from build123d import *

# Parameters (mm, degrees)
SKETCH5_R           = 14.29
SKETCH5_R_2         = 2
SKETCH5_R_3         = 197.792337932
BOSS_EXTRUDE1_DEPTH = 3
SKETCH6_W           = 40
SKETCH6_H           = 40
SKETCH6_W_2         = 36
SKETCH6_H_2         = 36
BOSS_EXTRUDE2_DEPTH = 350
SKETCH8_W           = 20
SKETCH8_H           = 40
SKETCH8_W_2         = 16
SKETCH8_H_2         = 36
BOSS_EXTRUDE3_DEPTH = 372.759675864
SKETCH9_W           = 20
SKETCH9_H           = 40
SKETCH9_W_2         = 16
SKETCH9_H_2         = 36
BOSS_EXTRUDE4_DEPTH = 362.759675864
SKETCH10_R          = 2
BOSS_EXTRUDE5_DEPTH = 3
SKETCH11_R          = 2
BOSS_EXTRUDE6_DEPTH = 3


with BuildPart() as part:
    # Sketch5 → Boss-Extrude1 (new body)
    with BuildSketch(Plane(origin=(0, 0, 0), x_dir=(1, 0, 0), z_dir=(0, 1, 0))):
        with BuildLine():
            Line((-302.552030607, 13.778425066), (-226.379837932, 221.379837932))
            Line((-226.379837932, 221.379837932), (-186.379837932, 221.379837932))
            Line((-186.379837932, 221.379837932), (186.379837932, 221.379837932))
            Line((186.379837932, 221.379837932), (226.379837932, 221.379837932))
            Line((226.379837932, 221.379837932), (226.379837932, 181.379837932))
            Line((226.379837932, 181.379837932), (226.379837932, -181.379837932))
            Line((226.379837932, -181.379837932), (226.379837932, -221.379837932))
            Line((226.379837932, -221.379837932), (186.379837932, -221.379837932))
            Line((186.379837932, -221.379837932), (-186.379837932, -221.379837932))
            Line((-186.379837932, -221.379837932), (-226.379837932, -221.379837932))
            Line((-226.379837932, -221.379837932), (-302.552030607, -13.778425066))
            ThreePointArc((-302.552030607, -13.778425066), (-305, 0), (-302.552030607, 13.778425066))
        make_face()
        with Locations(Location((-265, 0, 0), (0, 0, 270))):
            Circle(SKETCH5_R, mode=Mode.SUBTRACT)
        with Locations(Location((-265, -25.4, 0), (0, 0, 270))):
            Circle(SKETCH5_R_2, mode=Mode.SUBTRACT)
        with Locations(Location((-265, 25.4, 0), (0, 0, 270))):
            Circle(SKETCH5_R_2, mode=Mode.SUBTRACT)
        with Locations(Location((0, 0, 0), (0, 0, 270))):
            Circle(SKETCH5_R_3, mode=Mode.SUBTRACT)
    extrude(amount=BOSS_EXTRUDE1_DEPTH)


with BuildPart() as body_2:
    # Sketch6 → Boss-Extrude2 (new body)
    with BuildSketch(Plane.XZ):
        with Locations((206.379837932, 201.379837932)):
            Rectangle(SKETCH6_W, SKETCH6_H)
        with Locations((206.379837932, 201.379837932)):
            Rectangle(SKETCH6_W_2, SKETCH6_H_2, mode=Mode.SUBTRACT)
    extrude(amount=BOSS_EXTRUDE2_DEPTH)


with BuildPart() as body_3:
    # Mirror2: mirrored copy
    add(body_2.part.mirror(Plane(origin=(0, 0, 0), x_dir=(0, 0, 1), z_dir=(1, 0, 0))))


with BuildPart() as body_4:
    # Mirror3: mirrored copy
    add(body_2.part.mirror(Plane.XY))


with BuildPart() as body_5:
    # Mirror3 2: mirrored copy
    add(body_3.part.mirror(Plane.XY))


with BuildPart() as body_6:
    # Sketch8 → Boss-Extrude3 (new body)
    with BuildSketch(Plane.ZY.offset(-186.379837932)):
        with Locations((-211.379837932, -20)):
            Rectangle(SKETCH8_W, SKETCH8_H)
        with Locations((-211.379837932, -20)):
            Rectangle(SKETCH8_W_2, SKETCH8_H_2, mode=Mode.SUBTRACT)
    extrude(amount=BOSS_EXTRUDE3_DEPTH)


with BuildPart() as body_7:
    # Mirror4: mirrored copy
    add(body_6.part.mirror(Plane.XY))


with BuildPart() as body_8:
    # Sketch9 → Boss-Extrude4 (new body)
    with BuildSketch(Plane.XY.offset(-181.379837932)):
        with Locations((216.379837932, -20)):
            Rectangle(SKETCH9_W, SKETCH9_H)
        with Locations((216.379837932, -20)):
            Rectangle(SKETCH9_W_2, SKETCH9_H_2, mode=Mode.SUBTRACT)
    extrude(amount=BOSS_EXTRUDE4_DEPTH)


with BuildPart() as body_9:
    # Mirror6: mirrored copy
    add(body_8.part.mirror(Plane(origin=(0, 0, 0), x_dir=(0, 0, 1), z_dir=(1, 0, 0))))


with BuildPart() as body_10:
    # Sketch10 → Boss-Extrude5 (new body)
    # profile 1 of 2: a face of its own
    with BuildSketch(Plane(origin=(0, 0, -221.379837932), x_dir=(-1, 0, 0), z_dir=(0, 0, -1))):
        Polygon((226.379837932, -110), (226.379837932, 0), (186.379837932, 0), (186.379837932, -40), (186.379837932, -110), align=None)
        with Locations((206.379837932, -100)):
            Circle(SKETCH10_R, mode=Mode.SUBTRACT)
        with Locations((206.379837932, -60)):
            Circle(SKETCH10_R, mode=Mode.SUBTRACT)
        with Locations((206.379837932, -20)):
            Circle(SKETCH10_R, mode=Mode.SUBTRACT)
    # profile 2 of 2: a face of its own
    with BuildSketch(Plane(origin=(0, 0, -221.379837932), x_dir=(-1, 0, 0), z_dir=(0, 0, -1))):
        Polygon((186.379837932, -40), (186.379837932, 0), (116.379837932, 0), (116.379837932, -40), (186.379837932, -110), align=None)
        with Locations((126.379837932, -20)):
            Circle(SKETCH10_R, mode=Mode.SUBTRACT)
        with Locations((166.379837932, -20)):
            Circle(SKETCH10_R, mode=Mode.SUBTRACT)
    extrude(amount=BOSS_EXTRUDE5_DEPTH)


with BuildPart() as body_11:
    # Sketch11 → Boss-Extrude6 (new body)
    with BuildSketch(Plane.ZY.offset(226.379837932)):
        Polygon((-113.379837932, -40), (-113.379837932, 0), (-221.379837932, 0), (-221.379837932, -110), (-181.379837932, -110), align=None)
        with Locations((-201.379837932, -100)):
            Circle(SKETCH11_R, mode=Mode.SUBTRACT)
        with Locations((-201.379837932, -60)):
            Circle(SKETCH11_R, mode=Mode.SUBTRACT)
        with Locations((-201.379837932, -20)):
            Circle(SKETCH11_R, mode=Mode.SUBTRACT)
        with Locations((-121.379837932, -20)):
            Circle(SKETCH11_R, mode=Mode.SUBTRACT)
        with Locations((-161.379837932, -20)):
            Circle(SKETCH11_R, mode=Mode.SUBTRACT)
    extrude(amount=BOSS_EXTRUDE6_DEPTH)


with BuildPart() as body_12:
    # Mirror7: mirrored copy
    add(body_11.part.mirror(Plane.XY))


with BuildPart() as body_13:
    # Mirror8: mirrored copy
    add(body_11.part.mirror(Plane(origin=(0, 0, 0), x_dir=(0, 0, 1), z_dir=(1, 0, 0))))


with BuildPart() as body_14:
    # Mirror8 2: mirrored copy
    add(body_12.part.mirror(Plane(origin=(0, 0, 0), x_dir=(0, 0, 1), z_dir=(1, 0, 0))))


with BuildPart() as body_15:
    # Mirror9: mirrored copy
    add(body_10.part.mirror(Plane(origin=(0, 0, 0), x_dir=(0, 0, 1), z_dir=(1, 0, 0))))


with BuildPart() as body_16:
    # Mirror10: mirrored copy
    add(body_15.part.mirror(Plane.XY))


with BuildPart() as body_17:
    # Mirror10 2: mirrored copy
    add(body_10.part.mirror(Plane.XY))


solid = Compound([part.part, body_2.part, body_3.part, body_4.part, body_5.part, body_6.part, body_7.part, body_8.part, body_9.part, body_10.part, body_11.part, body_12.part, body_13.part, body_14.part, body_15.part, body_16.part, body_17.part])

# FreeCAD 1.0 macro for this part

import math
import FreeCAD as App
import Part
import Sketcher
from FreeCAD import Vector
Q = App.Units.Quantity

doc = App.newDocument("Part")
body = doc.addObject("PartDesign::Body", "Body")

# Sketch on XZ plane
sketch1 = body.newObject("Sketcher::SketchObject", "Sketch")
sketch1.AttachmentSupport = (doc.getObject("XZ_Plane"), [""])
sketch1.MapMode = "FlatFace"
sketch1.addGeometry(Part.LineSegment(Vector(-226.379838, -221.379838, 0), Vector(-302.552031, -13.778425, 0)), False)
sketch1.addGeometry(Part.ArcOfCircle(Part.Circle(Vector(-265, 0, 0), Vector(0, 0, 1), 40), math.radians(159.851126), math.radians(200.148874)), False)
sketch1.addGeometry(Part.LineSegment(Vector(-302.552031, 13.778425, 0), Vector(-226.379838, 221.379838, 0)), False)
sketch1.addGeometry(Part.LineSegment(Vector(-226.379838, 221.379838, 0), Vector(226.379838, 221.379838, 0)), False)
sketch1.addGeometry(Part.LineSegment(Vector(226.379838, 221.379838, 0), Vector(226.379838, -221.379838, 0)), False)
sketch1.addGeometry(Part.LineSegment(Vector(226.379838, -221.379838, 0), Vector(-226.379838, -221.379838, 0)), False)
sketch1.addGeometry(Part.Circle(Vector(-265, 25.4, 0), Vector(0, 0, 1), 2), False)
sketch1.addGeometry(Part.Circle(Vector(0, 0, 0), Vector(0, 0, 1), 197.792338), False)
sketch1.addGeometry(Part.Circle(Vector(-265, 0, 0), Vector(0, 0, 1), 14.29), False)
sketch1.addGeometry(Part.Circle(Vector(-265, -25.4, 0), Vector(0, 0, 1), 2), False)
sketch1.addConstraint(Sketcher.Constraint("Tangent", 0, 2, 1, 2))
sketch1.addConstraint(Sketcher.Constraint("Tangent", 1, 1, 2, 1))
sketch1.addConstraint(Sketcher.Constraint("Coincident", 2, 2, 3, 1))
sketch1.addConstraint(Sketcher.Constraint("Coincident", 3, 2, 4, 1))
sketch1.addConstraint(Sketcher.Constraint("Coincident", 4, 2, 5, 1))
sketch1.addConstraint(Sketcher.Constraint("Coincident", 5, 2, 0, 1))
sketch1.addConstraint(Sketcher.Constraint("Horizontal", 3))
sketch1.addConstraint(Sketcher.Constraint("Vertical", 4))
sketch1.addConstraint(Sketcher.Constraint("Horizontal", 5))
sketch1.addConstraint(Sketcher.Constraint("Coincident", 7, 3, -1, 1))
sketch1.addConstraint(Sketcher.Constraint("Coincident", 8, 3, 1, 3))
sketch1.addConstraint(Sketcher.Constraint("Equal", 6, 9))
sketch1.addConstraint(Sketcher.Constraint("Symmetric", 2, 2, 4, 2, -1, 1))
sketch1.addConstraint(Sketcher.Constraint("Symmetric", 6, 3, 9, 3, -1))
sketch1.addConstraint(Sketcher.Constraint("Symmetric", 0, 2, 1, 1, -1))
sketch1.addConstraint(Sketcher.Constraint("Vertical", 1, 3, 6, 3))
sketch1.addConstraint(Sketcher.Constraint("Diameter", 6, Q("4 mm")))
sketch1.addConstraint(Sketcher.Constraint("Radius", 1, Q("40 mm")))
sketch1.addConstraint(Sketcher.Constraint("Diameter", 8, Q("28.58 mm")))
sketch1.addConstraint(Sketcher.Constraint("DistanceX", 1, 3, -1, 1, Q("265 mm")))
sketch1.addConstraint(Sketcher.Constraint("DistanceY", -1, 1, 6, 3, Q("25.4 mm")))
sketch1.addConstraint(Sketcher.Constraint("Diameter", 7, Q("395.584676 mm")))
sketch1.addConstraint(Sketcher.Constraint("DistanceX", 3, 1, 3, 2, Q("452.759676 mm")))
sketch1.addConstraint(Sketcher.Constraint("DistanceY", 4, 2, 4, 1, Q("442.759676 mm")))
pad1 = body.newObject("PartDesign::Pad", "Pad")
pad1.Profile = sketch1
pad1.Length = 3
pad1.Reversed = True
body2 = doc.addObject("PartDesign::Body", "Body001")

# Sketch on XZ plane
sketch2 = body2.newObject("Sketcher::SketchObject", "Sketch001")
sketch2.AttachmentSupport = (doc.getObject("XZ_Plane001"), [""])
sketch2.MapMode = "FlatFace"
sketch2.addGeometry(Part.LineSegment(Vector(186.379838, 221.379838, 0), Vector(186.379838, 181.379838, 0)), False)
sketch2.addGeometry(Part.LineSegment(Vector(186.379838, 181.379838, 0), Vector(226.379838, 181.379838, 0)), False)
sketch2.addGeometry(Part.LineSegment(Vector(226.379838, 181.379838, 0), Vector(226.379838, 221.379838, 0)), False)
sketch2.addGeometry(Part.LineSegment(Vector(226.379838, 221.379838, 0), Vector(186.379838, 221.379838, 0)), False)
sketch2.addGeometry(Part.LineSegment(Vector(224.379838, 183.379838, 0), Vector(188.379838, 183.379838, 0)), False)
sketch2.addGeometry(Part.LineSegment(Vector(188.379838, 183.379838, 0), Vector(188.379838, 219.379838, 0)), False)
sketch2.addGeometry(Part.LineSegment(Vector(188.379838, 219.379838, 0), Vector(224.379838, 219.379838, 0)), False)
sketch2.addGeometry(Part.LineSegment(Vector(224.379838, 219.379838, 0), Vector(224.379838, 183.379838, 0)), False)
sketch2.addConstraint(Sketcher.Constraint("Coincident", 0, 2, 1, 1))
sketch2.addConstraint(Sketcher.Constraint("Coincident", 1, 2, 2, 1))
sketch2.addConstraint(Sketcher.Constraint("Coincident", 2, 2, 3, 1))
sketch2.addConstraint(Sketcher.Constraint("Coincident", 3, 2, 0, 1))
sketch2.addConstraint(Sketcher.Constraint("Coincident", 4, 2, 5, 1))
sketch2.addConstraint(Sketcher.Constraint("Coincident", 5, 2, 6, 1))
sketch2.addConstraint(Sketcher.Constraint("Coincident", 6, 2, 7, 1))
sketch2.addConstraint(Sketcher.Constraint("Coincident", 7, 2, 4, 1))
sketch2.addConstraint(Sketcher.Constraint("Vertical", 0))
sketch2.addConstraint(Sketcher.Constraint("Horizontal", 1))
sketch2.addConstraint(Sketcher.Constraint("Vertical", 2))
sketch2.addConstraint(Sketcher.Constraint("Horizontal", 3))
sketch2.addConstraint(Sketcher.Constraint("Horizontal", 4))
sketch2.addConstraint(Sketcher.Constraint("Vertical", 5))
sketch2.addConstraint(Sketcher.Constraint("Horizontal", 6))
sketch2.addConstraint(Sketcher.Constraint("Vertical", 7))
sketch2.addConstraint(Sketcher.Constraint("Equal", 3, 0))
sketch2.addConstraint(Sketcher.Constraint("Equal", 6, 5))
sketch2.addConstraint(Sketcher.Constraint("DistanceX", 1, 1, 1, 2, Q("40 mm")))
sketch2.addConstraint(Sketcher.Constraint("DistanceX", 4, 2, 4, 1, Q("36 mm")))
sketch2.addConstraint(Sketcher.Constraint("DistanceX", 0, 2, 4, 2, Q("2 mm")))
sketch2.addConstraint(Sketcher.Constraint("DistanceY", 0, 2, 4, 2, Q("2 mm")))
sketch2.addConstraint(Sketcher.Constraint("DistanceX", -1, 1, 0, 2, Q("186.379838 mm")))
sketch2.addConstraint(Sketcher.Constraint("DistanceY", -1, 1, 0, 2, Q("181.379838 mm")))
pad2 = body2.newObject("PartDesign::Pad", "Pad001")
pad2.Profile = sketch2
pad2.Length = 350
body3 = doc.addObject("PartDesign::Body", "Body002")
doc.recompute()

mirroring = doc.addObject("Part::Mirroring", "Mirroring")
mirroring.Source = body2
mirroring.Base = Vector(0, 0, 0)
mirroring.Normal = Vector(1, 0, 0)
body3.BaseFeature = mirroring
doc.recompute()
body4 = doc.addObject("PartDesign::Body", "Body003")
doc.recompute()

mirroring2 = doc.addObject("Part::Mirroring", "Mirroring001")
mirroring2.Source = body2
mirroring2.Base = Vector(0, 0, 0)
mirroring2.Normal = Vector(0, 0, 1)
body4.BaseFeature = mirroring2
doc.recompute()
body5 = doc.addObject("PartDesign::Body", "Body004")
doc.recompute()

mirroring3 = doc.addObject("Part::Mirroring", "Mirroring002")
mirroring3.Source = body3
mirroring3.Base = Vector(0, 0, 0)
mirroring3.Normal = Vector(0, 0, 1)
body5.BaseFeature = mirroring3
doc.recompute()
body6 = doc.addObject("PartDesign::Body", "Body005")

# Sketch on YZ plane
sketch3 = body6.newObject("Sketcher::SketchObject", "Sketch002")
sketch3.AttachmentSupport = (doc.getObject("YZ_Plane005"), [""])
sketch3.MapMode = "FlatFace"
sketch3.AttachmentOffset = App.Placement(Vector(0, 0, 186.379838), App.Rotation())
sketch3.addGeometry(Part.LineSegment(Vector(0, -221.379838, 0), Vector(-40, -221.379838, 0)), False)
sketch3.addGeometry(Part.LineSegment(Vector(-40, -221.379838, 0), Vector(-40, -201.379838, 0)), False)
sketch3.addGeometry(Part.LineSegment(Vector(-40, -201.379838, 0), Vector(0, -201.379838, 0)), False)
sketch3.addGeometry(Part.LineSegment(Vector(0, -201.379838, 0), Vector(0, -221.379838, 0)), False)
sketch3.addGeometry(Part.LineSegment(Vector(-38, -203.379838, 0), Vector(-38, -219.379838, 0)), False)
sketch3.addGeometry(Part.LineSegment(Vector(-38, -219.379838, 0), Vector(-2, -219.379838, 0)), False)
sketch3.addGeometry(Part.LineSegment(Vector(-2, -219.379838, 0), Vector(-2, -203.379838, 0)), False)
sketch3.addGeometry(Part.LineSegment(Vector(-2, -203.379838, 0), Vector(-38, -203.379838, 0)), False)
sketch3.addConstraint(Sketcher.Constraint("Coincident", 0, 2, 1, 1))
sketch3.addConstraint(Sketcher.Constraint("Coincident", 1, 2, 2, 1))
sketch3.addConstraint(Sketcher.Constraint("Coincident", 2, 2, 3, 1))
sketch3.addConstraint(Sketcher.Constraint("Coincident", 3, 2, 0, 1))
sketch3.addConstraint(Sketcher.Constraint("Coincident", 4, 2, 5, 1))
sketch3.addConstraint(Sketcher.Constraint("Coincident", 5, 2, 6, 1))
sketch3.addConstraint(Sketcher.Constraint("Coincident", 6, 2, 7, 1))
sketch3.addConstraint(Sketcher.Constraint("Coincident", 7, 2, 4, 1))
sketch3.addConstraint(Sketcher.Constraint("Horizontal", 0))
sketch3.addConstraint(Sketcher.Constraint("Vertical", 1))
sketch3.addConstraint(Sketcher.Constraint("Horizontal", 2))
sketch3.addConstraint(Sketcher.Constraint("Vertical", 3))
sketch3.addConstraint(Sketcher.Constraint("Vertical", 4))
sketch3.addConstraint(Sketcher.Constraint("Horizontal", 5))
sketch3.addConstraint(Sketcher.Constraint("Vertical", 6))
sketch3.addConstraint(Sketcher.Constraint("Horizontal", 7))
sketch3.addConstraint(Sketcher.Constraint("PointOnObject", 2, 2, -2))
sketch3.addConstraint(Sketcher.Constraint("DistanceX", 0, 2, 0, 1, Q("40 mm")))
sketch3.addConstraint(Sketcher.Constraint("DistanceX", 5, 1, 5, 2, Q("36 mm")))
sketch3.addConstraint(Sketcher.Constraint("DistanceY", 1, 1, 1, 2, Q("20 mm")))
sketch3.addConstraint(Sketcher.Constraint("DistanceY", 4, 2, 4, 1, Q("16 mm")))
sketch3.addConstraint(Sketcher.Constraint("DistanceX", 4, 2, -1, 1, Q("38 mm")))
sketch3.addConstraint(Sketcher.Constraint("DistanceY", 0, 2, 4, 2, Q("2 mm")))
sketch3.addConstraint(Sketcher.Constraint("DistanceY", 0, 2, -1, 1, Q("221.379838 mm")))
pad3 = body6.newObject("PartDesign::Pad", "Pad002")
pad3.Profile = sketch3
pad3.Length = 372.759676
pad3.Reversed = True
body7 = doc.addObject("PartDesign::Body", "Body006")
doc.recompute()

mirroring4 = doc.addObject("Part::Mirroring", "Mirroring003")
mirroring4.Source = body6
mirroring4.Base = Vector(0, 0, 0)
mirroring4.Normal = Vector(0, 0, 1)
body7.BaseFeature = mirroring4
doc.recompute()
body8 = doc.addObject("PartDesign::Body", "Body007")

# Sketch on XY plane
sketch4 = body8.newObject("Sketcher::SketchObject", "Sketch003")
sketch4.AttachmentSupport = (doc.getObject("XY_Plane007"), [""])
sketch4.MapMode = "FlatFace"
sketch4.AttachmentOffset = App.Placement(Vector(0, 0, -181.379838), App.Rotation())
sketch4.addGeometry(Part.LineSegment(Vector(206.379838, 0, 0), Vector(206.379838, -40, 0)), False)
sketch4.addGeometry(Part.LineSegment(Vector(206.379838, -40, 0), Vector(226.379838, -40, 0)), False)
sketch4.addGeometry(Part.LineSegment(Vector(226.379838, -40, 0), Vector(226.379838, 0, 0)), False)
sketch4.addGeometry(Part.LineSegment(Vector(226.379838, 0, 0), Vector(206.379838, 0, 0)), False)
sketch4.addGeometry(Part.LineSegment(Vector(224.379838, -38, 0), Vector(208.379838, -38, 0)), False)
sketch4.addGeometry(Part.LineSegment(Vector(208.379838, -38, 0), Vector(208.379838, -2, 0)), False)
sketch4.addGeometry(Part.LineSegment(Vector(208.379838, -2, 0), Vector(224.379838, -2, 0)), False)
sketch4.addGeometry(Part.LineSegment(Vector(224.379838, -2, 0), Vector(224.379838, -38, 0)), False)
sketch4.addConstraint(Sketcher.Constraint("Coincident", 0, 2, 1, 1))
sketch4.addConstraint(Sketcher.Constraint("Coincident", 1, 2, 2, 1))
sketch4.addConstraint(Sketcher.Constraint("Coincident", 2, 2, 3, 1))
sketch4.addConstraint(Sketcher.Constraint("Coincident", 3, 2, 0, 1))
sketch4.addConstraint(Sketcher.Constraint("Coincident", 4, 2, 5, 1))
sketch4.addConstraint(Sketcher.Constraint("Coincident", 5, 2, 6, 1))
sketch4.addConstraint(Sketcher.Constraint("Coincident", 6, 2, 7, 1))
sketch4.addConstraint(Sketcher.Constraint("Coincident", 7, 2, 4, 1))
sketch4.addConstraint(Sketcher.Constraint("Vertical", 0))
sketch4.addConstraint(Sketcher.Constraint("Horizontal", 1))
sketch4.addConstraint(Sketcher.Constraint("Vertical", 2))
sketch4.addConstraint(Sketcher.Constraint("Horizontal", 3))
sketch4.addConstraint(Sketcher.Constraint("Horizontal", 4))
sketch4.addConstraint(Sketcher.Constraint("Vertical", 5))
sketch4.addConstraint(Sketcher.Constraint("Horizontal", 6))
sketch4.addConstraint(Sketcher.Constraint("Vertical", 7))
sketch4.addConstraint(Sketcher.Constraint("PointOnObject", 2, 2, -1))
sketch4.addConstraint(Sketcher.Constraint("DistanceX", 1, 1, 1, 2, Q("20 mm")))
sketch4.addConstraint(Sketcher.Constraint("DistanceX", 4, 2, 4, 1, Q("16 mm")))
sketch4.addConstraint(Sketcher.Constraint("DistanceY", 0, 2, 0, 1, Q("40 mm")))
sketch4.addConstraint(Sketcher.Constraint("DistanceY", 5, 1, 5, 2, Q("36 mm")))
sketch4.addConstraint(Sketcher.Constraint("DistanceY", 4, 2, -1, 1, Q("38 mm")))
sketch4.addConstraint(Sketcher.Constraint("DistanceX", 0, 2, 4, 2, Q("2 mm")))
sketch4.addConstraint(Sketcher.Constraint("DistanceX", -1, 1, 0, 2, Q("206.379838 mm")))
pad4 = body8.newObject("PartDesign::Pad", "Pad003")
pad4.Profile = sketch4
pad4.Length = 362.759676
body9 = doc.addObject("PartDesign::Body", "Body008")
doc.recompute()

mirroring5 = doc.addObject("Part::Mirroring", "Mirroring004")
mirroring5.Source = body8
mirroring5.Base = Vector(0, 0, 0)
mirroring5.Normal = Vector(1, 0, 0)
body9.BaseFeature = mirroring5
doc.recompute()
body10 = doc.addObject("PartDesign::Body", "Body009")

# Sketch on XY plane
sketch5 = body10.newObject("Sketcher::SketchObject", "Sketch004")
sketch5.AttachmentSupport = (doc.getObject("XY_Plane009"), [""])
sketch5.MapMode = "FlatFace"
sketch5.AttachmentOffset = App.Placement(Vector(0, 0, -221.379838), App.Rotation())
sketch5.addGeometry(Part.LineSegment(Vector(-226.379838, -110, 0), Vector(-226.379838, 0, 0)), False)
sketch5.addGeometry(Part.LineSegment(Vector(-226.379838, 0, 0), Vector(-116.379838, 0, 0)), False)
sketch5.addGeometry(Part.LineSegment(Vector(-116.379838, 0, 0), Vector(-116.379838, -40, 0)), False)
sketch5.addGeometry(Part.LineSegment(Vector(-116.379838, -40, 0), Vector(-186.379838, -110, 0)), False)
sketch5.addGeometry(Part.LineSegment(Vector(-186.379838, -110, 0), Vector(-226.379838, -110, 0)), False)
sketch5.addGeometry(Part.Circle(Vector(-206.379838, -100, 0), Vector(0, 0, 1), 2), False)
sketch5.addGeometry(Part.Circle(Vector(-206.379838, -60, 0), Vector(0, 0, 1), 2), False)
sketch5.addGeometry(Part.Circle(Vector(-206.379838, -20, 0), Vector(0, 0, 1), 2), False)
sketch5.addGeometry(Part.Circle(Vector(-166.379838, -20, 0), Vector(0, 0, 1), 2), False)
sketch5.addGeometry(Part.Circle(Vector(-126.379838, -20, 0), Vector(0, 0, 1), 2), False)
sketch5.addConstraint(Sketcher.Constraint("Coincident", 0, 2, 1, 1))
sketch5.addConstraint(Sketcher.Constraint("Coincident", 1, 2, 2, 1))
sketch5.addConstraint(Sketcher.Constraint("Coincident", 2, 2, 3, 1))
sketch5.addConstraint(Sketcher.Constraint("Coincident", 3, 2, 4, 1))
sketch5.addConstraint(Sketcher.Constraint("Coincident", 4, 2, 0, 1))
sketch5.addConstraint(Sketcher.Constraint("Vertical", 0))
sketch5.addConstraint(Sketcher.Constraint("Horizontal", 1))
sketch5.addConstraint(Sketcher.Constraint("Vertical", 2))
sketch5.addConstraint(Sketcher.Constraint("Horizontal", 4))
sketch5.addConstraint(Sketcher.Constraint("Equal", 5, 6))
sketch5.addConstraint(Sketcher.Constraint("Equal", 6, 7))
sketch5.addConstraint(Sketcher.Constraint("Equal", 7, 8))
sketch5.addConstraint(Sketcher.Constraint("Equal", 8, 9))
sketch5.addConstraint(Sketcher.Constraint("PointOnObject", 0, 2, -1))
sketch5.addConstraint(Sketcher.Constraint("Horizontal", 7, 3, 8, 3))
sketch5.addConstraint(Sketcher.Constraint("Horizontal", 8, 3, 9, 3))
sketch5.addConstraint(Sketcher.Constraint("Vertical", 5, 3, 6, 3))
sketch5.addConstraint(Sketcher.Constraint("Vertical", 6, 3, 7, 3))
sketch5.addConstraint(Sketcher.Constraint("Equal", 1, 0))
sketch5.addConstraint(Sketcher.Constraint("Equal", 4, 2))
sketch5.addConstraint(Sketcher.Constraint("Diameter", 5, Q("4 mm")))
sketch5.addConstraint(Sketcher.Constraint("DistanceX", 1, 1, 1, 2, Q("110 mm")))
sketch5.addConstraint(Sketcher.Constraint("DistanceX", 4, 2, 4, 1, Q("40 mm")))
sketch5.addConstraint(Sketcher.Constraint("DistanceY", 5, 3, -1, 1, Q("100 mm")))
sketch5.addConstraint(Sketcher.Constraint("DistanceY", 6, 3, -1, 1, Q("60 mm")))
sketch5.addConstraint(Sketcher.Constraint("DistanceY", 7, 3, -1, 1, Q("20 mm")))
sketch5.addConstraint(Sketcher.Constraint("DistanceX", 7, 3, 8, 3, Q("40 mm")))
sketch5.addConstraint(Sketcher.Constraint("DistanceX", 8, 3, 9, 3, Q("40 mm")))
sketch5.addConstraint(Sketcher.Constraint("DistanceX", 0, 2, 7, 3, Q("20 mm")))
sketch5.addConstraint(Sketcher.Constraint("DistanceX", 5, 3, -1, 1, Q("206.379838 mm")))
pad5 = body10.newObject("PartDesign::Pad", "Pad004")
pad5.Profile = sketch5
pad5.Length = 3
pad5.Reversed = True
body11 = doc.addObject("PartDesign::Body", "Body010")

# Sketch on YZ plane
sketch6 = body11.newObject("Sketcher::SketchObject", "Sketch005")
sketch6.AttachmentSupport = (doc.getObject("YZ_Plane010"), [""])
sketch6.MapMode = "FlatFace"
sketch6.AttachmentOffset = App.Placement(Vector(0, 0, -226.379838), App.Rotation())
sketch6.addGeometry(Part.LineSegment(Vector(-40, -113.379838, 0), Vector(0, -113.379838, 0)), False)
sketch6.addGeometry(Part.LineSegment(Vector(0, -113.379838, 0), Vector(0, -221.379838, 0)), False)
sketch6.addGeometry(Part.LineSegment(Vector(0, -221.379838, 0), Vector(-110, -221.379838, 0)), False)
sketch6.addGeometry(Part.LineSegment(Vector(-110, -221.379838, 0), Vector(-110, -181.379838, 0)), False)
sketch6.addGeometry(Part.LineSegment(Vector(-110, -181.379838, 0), Vector(-40, -113.379838, 0)), False)
sketch6.addGeometry(Part.Circle(Vector(-100, -201.379838, 0), Vector(0, 0, 1), 2), False)
sketch6.addGeometry(Part.Circle(Vector(-60, -201.379838, 0), Vector(0, 0, 1), 2), False)
sketch6.addGeometry(Part.Circle(Vector(-20, -201.379838, 0), Vector(0, 0, 1), 2), False)
sketch6.addGeometry(Part.Circle(Vector(-20, -161.379838, 0), Vector(0, 0, 1), 2), False)
sketch6.addGeometry(Part.Circle(Vector(-20, -121.379838, 0), Vector(0, 0, 1), 2), False)
sketch6.addConstraint(Sketcher.Constraint("Coincident", 0, 2, 1, 1))
sketch6.addConstraint(Sketcher.Constraint("Coincident", 1, 2, 2, 1))
sketch6.addConstraint(Sketcher.Constraint("Coincident", 2, 2, 3, 1))
sketch6.addConstraint(Sketcher.Constraint("Coincident", 3, 2, 4, 1))
sketch6.addConstraint(Sketcher.Constraint("Coincident", 4, 2, 0, 1))
sketch6.addConstraint(Sketcher.Constraint("Horizontal", 0))
sketch6.addConstraint(Sketcher.Constraint("Vertical", 1))
sketch6.addConstraint(Sketcher.Constraint("Horizontal", 2))
sketch6.addConstraint(Sketcher.Constraint("Vertical", 3))
sketch6.addConstraint(Sketcher.Constraint("Equal", 5, 6))
sketch6.addConstraint(Sketcher.Constraint("Equal", 6, 7))
sketch6.addConstraint(Sketcher.Constraint("Equal", 7, 8))
sketch6.addConstraint(Sketcher.Constraint("Equal", 8, 9))
sketch6.addConstraint(Sketcher.Constraint("PointOnObject", 0, 2, -2))
sketch6.addConstraint(Sketcher.Constraint("Horizontal", 5, 3, 6, 3))
sketch6.addConstraint(Sketcher.Constraint("Horizontal", 6, 3, 7, 3))
sketch6.addConstraint(Sketcher.Constraint("Vertical", 7, 3, 8, 3))
sketch6.addConstraint(Sketcher.Constraint("Vertical", 8, 3, 9, 3))
sketch6.addConstraint(Sketcher.Constraint("Equal", 0, 3))
sketch6.addConstraint(Sketcher.Constraint("Diameter", 5, Q("4 mm")))
sketch6.addConstraint(Sketcher.Constraint("DistanceX", 0, 1, 0, 2, Q("40 mm")))
sketch6.addConstraint(Sketcher.Constraint("DistanceX", 2, 2, 2, 1, Q("110 mm")))
sketch6.addConstraint(Sketcher.Constraint("DistanceY", 1, 2, 1, 1, Q("108 mm")))
sketch6.addConstraint(Sketcher.Constraint("DistanceX", 5, 3, -1, 1, Q("100 mm")))
sketch6.addConstraint(Sketcher.Constraint("DistanceX", 6, 3, -1, 1, Q("60 mm")))
sketch6.addConstraint(Sketcher.Constraint("DistanceX", 7, 3, -1, 1, Q("20 mm")))
sketch6.addConstraint(Sketcher.Constraint("DistanceY", 7, 3, 8, 3, Q("40 mm")))
sketch6.addConstraint(Sketcher.Constraint("DistanceY", 8, 3, 9, 3, Q("40 mm")))
sketch6.addConstraint(Sketcher.Constraint("DistanceY", 9, 3, 0, 2, Q("8 mm")))
sketch6.addConstraint(Sketcher.Constraint("DistanceY", 5, 3, -1, 1, Q("201.379838 mm")))
pad6 = body11.newObject("PartDesign::Pad", "Pad005")
pad6.Profile = sketch6
pad6.Length = 3
pad6.Reversed = True
body12 = doc.addObject("PartDesign::Body", "Body011")
doc.recompute()

mirroring6 = doc.addObject("Part::Mirroring", "Mirroring005")
mirroring6.Source = body11
mirroring6.Base = Vector(0, 0, 0)
mirroring6.Normal = Vector(0, 0, 1)
body12.BaseFeature = mirroring6
doc.recompute()
body13 = doc.addObject("PartDesign::Body", "Body012")
doc.recompute()

mirroring7 = doc.addObject("Part::Mirroring", "Mirroring006")
mirroring7.Source = body11
mirroring7.Base = Vector(0, 0, 0)
mirroring7.Normal = Vector(1, 0, 0)
body13.BaseFeature = mirroring7
doc.recompute()
body14 = doc.addObject("PartDesign::Body", "Body013")
doc.recompute()

mirroring8 = doc.addObject("Part::Mirroring", "Mirroring007")
mirroring8.Source = body12
mirroring8.Base = Vector(0, 0, 0)
mirroring8.Normal = Vector(1, 0, 0)
body14.BaseFeature = mirroring8
doc.recompute()
body15 = doc.addObject("PartDesign::Body", "Body014")
doc.recompute()

mirroring9 = doc.addObject("Part::Mirroring", "Mirroring008")
mirroring9.Source = body10
mirroring9.Base = Vector(0, 0, 0)
mirroring9.Normal = Vector(1, 0, 0)
body15.BaseFeature = mirroring9
doc.recompute()
body16 = doc.addObject("PartDesign::Body", "Body015")
doc.recompute()

mirroring10 = doc.addObject("Part::Mirroring", "Mirroring009")
mirroring10.Source = body15
mirroring10.Base = Vector(0, 0, 0)
mirroring10.Normal = Vector(0, 0, 1)
body16.BaseFeature = mirroring10
doc.recompute()
body17 = doc.addObject("PartDesign::Body", "Body016")
doc.recompute()

mirroring11 = doc.addObject("Part::Mirroring", "Mirroring010")
mirroring11.Source = body10
mirroring11.Base = Vector(0, 0, 0)
mirroring11.Normal = Vector(0, 0, 1)
body17.BaseFeature = mirroring11
doc.recompute()

doc.recompute()
